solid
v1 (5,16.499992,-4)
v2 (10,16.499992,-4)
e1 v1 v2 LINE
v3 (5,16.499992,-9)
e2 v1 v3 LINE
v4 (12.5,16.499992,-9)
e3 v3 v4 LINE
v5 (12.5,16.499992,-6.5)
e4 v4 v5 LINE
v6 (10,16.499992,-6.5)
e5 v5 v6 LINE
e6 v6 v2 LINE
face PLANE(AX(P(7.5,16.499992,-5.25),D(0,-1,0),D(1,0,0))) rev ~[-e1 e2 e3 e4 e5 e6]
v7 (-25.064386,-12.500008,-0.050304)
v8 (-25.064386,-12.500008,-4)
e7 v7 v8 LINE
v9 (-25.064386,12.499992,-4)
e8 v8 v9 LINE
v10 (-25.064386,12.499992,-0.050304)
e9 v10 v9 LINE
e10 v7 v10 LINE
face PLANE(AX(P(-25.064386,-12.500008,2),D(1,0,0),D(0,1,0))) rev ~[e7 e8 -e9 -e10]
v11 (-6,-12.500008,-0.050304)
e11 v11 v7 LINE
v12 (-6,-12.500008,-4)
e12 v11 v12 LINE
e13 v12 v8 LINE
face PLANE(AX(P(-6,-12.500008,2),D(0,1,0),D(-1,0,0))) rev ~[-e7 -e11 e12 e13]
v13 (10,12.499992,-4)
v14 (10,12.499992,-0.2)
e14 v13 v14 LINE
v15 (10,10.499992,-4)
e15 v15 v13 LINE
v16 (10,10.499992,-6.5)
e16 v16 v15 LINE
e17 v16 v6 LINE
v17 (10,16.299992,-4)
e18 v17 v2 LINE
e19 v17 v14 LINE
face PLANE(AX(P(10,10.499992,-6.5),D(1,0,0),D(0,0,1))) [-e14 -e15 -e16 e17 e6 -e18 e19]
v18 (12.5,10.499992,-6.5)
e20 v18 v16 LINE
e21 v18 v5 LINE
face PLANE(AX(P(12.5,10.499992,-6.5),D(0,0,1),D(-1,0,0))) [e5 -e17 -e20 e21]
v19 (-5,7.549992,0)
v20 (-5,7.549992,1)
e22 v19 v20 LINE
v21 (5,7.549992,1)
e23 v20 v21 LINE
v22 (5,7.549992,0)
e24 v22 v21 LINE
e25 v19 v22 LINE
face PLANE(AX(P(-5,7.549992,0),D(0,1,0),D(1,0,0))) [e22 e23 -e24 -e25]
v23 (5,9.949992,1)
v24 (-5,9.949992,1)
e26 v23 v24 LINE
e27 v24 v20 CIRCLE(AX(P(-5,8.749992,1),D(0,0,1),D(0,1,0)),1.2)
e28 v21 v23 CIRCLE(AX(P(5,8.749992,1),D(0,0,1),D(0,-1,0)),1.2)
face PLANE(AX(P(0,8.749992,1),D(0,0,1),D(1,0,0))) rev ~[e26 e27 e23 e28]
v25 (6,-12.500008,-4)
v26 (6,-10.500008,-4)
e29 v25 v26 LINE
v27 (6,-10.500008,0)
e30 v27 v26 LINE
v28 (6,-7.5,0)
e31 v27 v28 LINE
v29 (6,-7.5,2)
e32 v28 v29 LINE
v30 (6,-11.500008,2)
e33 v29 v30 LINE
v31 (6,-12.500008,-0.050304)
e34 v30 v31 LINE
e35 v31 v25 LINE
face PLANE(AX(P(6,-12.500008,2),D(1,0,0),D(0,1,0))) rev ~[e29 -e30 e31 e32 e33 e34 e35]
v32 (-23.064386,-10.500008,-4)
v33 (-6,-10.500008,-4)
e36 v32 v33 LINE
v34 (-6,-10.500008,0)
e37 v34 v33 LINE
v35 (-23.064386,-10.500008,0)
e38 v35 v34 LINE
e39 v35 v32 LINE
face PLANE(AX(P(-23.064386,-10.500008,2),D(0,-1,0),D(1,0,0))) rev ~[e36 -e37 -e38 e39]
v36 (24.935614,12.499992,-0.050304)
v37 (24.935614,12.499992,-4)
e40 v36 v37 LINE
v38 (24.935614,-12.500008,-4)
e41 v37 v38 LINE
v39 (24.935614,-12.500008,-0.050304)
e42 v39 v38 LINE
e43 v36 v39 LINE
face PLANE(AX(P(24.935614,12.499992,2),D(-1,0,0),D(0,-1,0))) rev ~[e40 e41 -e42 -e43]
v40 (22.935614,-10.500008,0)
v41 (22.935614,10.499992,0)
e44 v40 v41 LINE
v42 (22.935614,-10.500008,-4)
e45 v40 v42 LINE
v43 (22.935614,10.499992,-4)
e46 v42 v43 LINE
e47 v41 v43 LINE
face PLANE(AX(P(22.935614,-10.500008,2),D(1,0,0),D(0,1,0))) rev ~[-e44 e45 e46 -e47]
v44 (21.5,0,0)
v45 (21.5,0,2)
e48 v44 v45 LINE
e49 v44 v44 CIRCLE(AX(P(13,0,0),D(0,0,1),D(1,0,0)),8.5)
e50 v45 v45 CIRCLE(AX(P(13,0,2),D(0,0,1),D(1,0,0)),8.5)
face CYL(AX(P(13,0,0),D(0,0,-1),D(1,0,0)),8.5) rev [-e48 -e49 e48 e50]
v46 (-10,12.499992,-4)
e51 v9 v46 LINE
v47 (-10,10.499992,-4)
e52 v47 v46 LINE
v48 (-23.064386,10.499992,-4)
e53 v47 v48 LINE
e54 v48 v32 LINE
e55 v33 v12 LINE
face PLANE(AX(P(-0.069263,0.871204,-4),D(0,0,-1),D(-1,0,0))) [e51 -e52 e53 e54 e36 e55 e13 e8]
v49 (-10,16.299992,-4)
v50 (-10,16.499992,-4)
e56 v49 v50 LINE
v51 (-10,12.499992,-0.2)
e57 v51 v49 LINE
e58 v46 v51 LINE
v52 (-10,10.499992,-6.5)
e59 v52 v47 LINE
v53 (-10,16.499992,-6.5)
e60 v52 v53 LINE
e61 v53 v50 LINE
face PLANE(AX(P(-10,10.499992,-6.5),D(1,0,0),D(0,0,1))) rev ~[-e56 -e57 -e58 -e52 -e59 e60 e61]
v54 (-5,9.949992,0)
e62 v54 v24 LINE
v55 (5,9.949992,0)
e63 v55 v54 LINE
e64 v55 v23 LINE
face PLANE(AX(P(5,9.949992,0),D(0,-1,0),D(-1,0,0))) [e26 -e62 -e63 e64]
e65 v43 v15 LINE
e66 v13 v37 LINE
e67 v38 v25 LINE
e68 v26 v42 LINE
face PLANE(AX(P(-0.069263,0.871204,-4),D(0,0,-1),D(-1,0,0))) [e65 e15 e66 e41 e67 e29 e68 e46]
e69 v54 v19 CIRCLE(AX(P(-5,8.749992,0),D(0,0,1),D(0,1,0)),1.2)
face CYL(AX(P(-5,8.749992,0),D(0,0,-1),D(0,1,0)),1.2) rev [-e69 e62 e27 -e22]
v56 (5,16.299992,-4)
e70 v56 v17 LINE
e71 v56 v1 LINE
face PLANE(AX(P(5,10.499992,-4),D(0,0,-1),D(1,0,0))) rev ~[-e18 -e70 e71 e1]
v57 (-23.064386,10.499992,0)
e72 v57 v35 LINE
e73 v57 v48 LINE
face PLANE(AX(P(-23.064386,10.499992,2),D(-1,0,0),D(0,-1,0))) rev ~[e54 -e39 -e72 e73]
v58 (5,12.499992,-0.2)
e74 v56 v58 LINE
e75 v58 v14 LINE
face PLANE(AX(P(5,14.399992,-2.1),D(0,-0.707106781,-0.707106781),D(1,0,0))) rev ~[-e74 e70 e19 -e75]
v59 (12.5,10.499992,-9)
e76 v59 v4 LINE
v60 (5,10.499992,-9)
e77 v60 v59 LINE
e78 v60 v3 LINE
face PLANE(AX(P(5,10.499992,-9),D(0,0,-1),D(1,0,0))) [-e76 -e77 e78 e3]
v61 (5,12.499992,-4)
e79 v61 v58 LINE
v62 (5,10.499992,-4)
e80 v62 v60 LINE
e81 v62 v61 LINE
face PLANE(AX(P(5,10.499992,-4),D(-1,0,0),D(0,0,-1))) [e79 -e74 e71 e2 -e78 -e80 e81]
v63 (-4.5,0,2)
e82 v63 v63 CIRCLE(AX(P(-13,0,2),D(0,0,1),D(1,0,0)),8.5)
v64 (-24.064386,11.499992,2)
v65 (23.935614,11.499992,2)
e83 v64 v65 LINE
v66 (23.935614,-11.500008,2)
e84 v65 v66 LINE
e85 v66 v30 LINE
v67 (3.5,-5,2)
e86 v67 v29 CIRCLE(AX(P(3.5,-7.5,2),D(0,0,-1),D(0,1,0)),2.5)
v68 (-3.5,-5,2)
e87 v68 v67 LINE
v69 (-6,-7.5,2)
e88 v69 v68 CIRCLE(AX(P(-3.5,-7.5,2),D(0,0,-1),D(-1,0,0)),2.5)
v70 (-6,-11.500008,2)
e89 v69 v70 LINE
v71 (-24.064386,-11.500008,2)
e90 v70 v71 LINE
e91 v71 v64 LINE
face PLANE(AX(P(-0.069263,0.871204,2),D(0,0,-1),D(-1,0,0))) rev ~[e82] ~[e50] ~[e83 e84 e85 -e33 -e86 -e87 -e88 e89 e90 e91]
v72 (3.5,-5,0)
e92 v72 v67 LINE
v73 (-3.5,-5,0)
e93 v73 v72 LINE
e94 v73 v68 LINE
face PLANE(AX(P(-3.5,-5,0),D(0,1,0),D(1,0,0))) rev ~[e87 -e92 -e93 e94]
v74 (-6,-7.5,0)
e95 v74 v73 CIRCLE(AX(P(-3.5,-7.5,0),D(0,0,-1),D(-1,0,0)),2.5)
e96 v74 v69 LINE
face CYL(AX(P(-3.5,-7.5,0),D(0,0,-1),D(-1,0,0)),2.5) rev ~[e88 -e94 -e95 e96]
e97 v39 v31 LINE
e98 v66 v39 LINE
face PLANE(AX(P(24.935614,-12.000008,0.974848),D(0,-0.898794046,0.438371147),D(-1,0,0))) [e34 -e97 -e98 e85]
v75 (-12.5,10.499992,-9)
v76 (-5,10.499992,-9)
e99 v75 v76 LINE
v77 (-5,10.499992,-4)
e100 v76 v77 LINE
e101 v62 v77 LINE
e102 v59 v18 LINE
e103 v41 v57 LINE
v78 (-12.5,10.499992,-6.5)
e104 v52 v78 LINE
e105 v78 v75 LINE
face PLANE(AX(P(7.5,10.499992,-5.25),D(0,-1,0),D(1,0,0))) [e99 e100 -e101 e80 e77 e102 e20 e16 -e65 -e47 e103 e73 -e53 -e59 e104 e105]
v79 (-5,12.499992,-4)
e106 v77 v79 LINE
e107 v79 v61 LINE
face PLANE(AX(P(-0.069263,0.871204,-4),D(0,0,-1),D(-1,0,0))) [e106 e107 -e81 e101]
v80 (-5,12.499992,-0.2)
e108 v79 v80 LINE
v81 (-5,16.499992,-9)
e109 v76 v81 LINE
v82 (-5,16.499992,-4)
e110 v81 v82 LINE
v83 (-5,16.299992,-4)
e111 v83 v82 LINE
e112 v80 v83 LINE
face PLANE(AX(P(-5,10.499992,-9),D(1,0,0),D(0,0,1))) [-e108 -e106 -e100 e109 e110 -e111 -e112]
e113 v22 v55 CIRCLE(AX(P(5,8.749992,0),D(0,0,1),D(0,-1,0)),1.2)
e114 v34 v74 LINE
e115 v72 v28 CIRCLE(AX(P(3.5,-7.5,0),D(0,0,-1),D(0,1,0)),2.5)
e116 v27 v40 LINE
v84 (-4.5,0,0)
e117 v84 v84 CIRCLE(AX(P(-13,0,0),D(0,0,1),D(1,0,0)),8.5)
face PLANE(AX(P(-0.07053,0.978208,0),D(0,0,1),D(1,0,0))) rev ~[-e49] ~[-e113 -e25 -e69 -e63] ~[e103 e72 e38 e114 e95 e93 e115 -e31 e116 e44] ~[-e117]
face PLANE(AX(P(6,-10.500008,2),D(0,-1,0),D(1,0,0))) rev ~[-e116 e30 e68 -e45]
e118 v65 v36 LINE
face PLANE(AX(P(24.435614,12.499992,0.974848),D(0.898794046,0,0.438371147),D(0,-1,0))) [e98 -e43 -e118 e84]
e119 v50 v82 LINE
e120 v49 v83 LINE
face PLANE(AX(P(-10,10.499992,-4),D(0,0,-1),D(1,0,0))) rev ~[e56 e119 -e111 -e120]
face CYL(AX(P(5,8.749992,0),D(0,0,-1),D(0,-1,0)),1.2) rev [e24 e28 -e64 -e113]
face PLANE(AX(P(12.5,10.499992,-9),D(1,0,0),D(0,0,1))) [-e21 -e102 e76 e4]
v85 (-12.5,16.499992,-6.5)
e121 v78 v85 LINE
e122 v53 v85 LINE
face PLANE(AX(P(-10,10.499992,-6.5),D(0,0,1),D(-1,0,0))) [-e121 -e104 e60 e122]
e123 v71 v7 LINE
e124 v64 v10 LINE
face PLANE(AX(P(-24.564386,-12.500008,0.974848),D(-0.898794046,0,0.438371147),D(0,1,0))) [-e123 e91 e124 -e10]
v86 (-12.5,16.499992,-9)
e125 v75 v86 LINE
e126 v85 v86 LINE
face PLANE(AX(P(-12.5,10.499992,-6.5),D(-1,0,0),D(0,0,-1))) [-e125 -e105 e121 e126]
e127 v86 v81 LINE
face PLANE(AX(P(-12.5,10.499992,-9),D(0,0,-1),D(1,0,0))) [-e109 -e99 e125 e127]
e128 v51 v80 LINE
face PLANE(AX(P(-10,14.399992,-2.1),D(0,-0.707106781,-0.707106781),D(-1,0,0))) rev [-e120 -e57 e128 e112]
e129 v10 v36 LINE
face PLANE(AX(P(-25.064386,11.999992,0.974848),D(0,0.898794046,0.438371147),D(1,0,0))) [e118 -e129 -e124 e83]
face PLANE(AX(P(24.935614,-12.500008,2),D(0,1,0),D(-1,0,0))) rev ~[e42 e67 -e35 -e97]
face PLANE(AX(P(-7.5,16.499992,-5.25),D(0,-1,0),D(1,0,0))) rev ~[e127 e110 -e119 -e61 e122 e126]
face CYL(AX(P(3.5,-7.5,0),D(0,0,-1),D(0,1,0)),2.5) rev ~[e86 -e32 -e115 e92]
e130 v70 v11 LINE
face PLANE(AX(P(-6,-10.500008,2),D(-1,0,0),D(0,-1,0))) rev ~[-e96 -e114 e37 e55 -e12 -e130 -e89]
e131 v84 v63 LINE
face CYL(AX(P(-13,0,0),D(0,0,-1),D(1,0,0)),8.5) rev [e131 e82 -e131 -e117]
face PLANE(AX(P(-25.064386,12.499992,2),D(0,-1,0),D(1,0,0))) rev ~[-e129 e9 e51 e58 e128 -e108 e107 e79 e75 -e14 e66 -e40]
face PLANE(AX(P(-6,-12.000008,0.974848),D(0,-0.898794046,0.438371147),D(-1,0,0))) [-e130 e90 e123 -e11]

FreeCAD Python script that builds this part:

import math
import FreeCAD as App
import Part
import Sketcher
from FreeCAD import Vector


def edges_at(feature, points):
    """Names of the edges that pass closest to the given points."""
    edges = feature.Shape.Edges
    near = lambda p: min(range(len(edges)), key=lambda i: edges[i].distToShape(Part.Vertex(*p))[0])
    return sorted({f"Edge{near(p) + 1}" for p in points})


def add_polygon(sketch, points):
    """Adds a closed chain of lines whose ends are joined by coincident constraints."""
    first, n = sketch.GeometryCount, len(points)
    for a, b in zip(points, points[1:] + points[:1]):
        sketch.addGeometry(Part.LineSegment(App.Vector(*a, 0), App.Vector(*b, 0)), False)
    for i in range(n):
        sketch.addConstraint(Sketcher.Constraint("Coincident", first + i, 2, first + (i + 1) % n, 1))

doc = App.newDocument("Part")
body = doc.addObject("PartDesign::Body", "Body")

sketch1 = body.newObject("Sketcher::SketchObject", "Sketch")
sketch1.AttachmentSupport = (doc.getObject("XY_Plane"), [""])
sketch1.MapMode = "FlatFace"
sketch1.addGeometry(Part.ArcOfCircle(Part.Circle(Vector(-3.5, -7.5, 0), Vector(0, 0, 1), 2.5), math.radians(90), math.radians(180)), False)
sketch1.addGeometry(Part.LineSegment(Vector(-3.5, -5, 0), Vector(3.5, -5, 0)), False)
sketch1.addGeometry(Part.ArcOfCircle(Part.Circle(Vector(3.5, -7.5, 0), Vector(0, 0, 1), 2.5), math.radians(0), math.radians(90)), False)
sketch1.addGeometry(Part.LineSegment(Vector(6, -7.5, 0), Vector(6, -10.5, 0)), False)
sketch1.addGeometry(Part.LineSegment(Vector(6, -10.5, 0), Vector(22.9, -10.5, 0)), False)
sketch1.addGeometry(Part.LineSegment(Vector(22.9, -10.5, 0), Vector(22.9, 10.5, 0)), False)
sketch1.addGeometry(Part.LineSegment(Vector(22.9, 10.5, 0), Vector(-23.1, 10.5, 0)), False)
sketch1.addGeometry(Part.LineSegment(Vector(-23.1, 10.5, 0), Vector(-23.1, -10.5, 0)), False)
sketch1.addGeometry(Part.LineSegment(Vector(-23.1, -10.5, 0), Vector(-6, -10.5, 0)), False)
sketch1.addGeometry(Part.LineSegment(Vector(-6, -10.5, 0), Vector(-6, -7.5, 0)), False)
sketch1.addGeometry(Part.Circle(Vector(-13, 0, 0), Vector(0, 0, 1), 8.5), False)
sketch1.addGeometry(Part.Circle(Vector(13, 0, 0), Vector(0, 0, 1), 8.5), False)
sketch1.addConstraint(Sketcher.Constraint("Tangent", 0, 1, 1, 1))
sketch1.addConstraint(Sketcher.Constraint("Tangent", 1, 2, 2, 2))
sketch1.addConstraint(Sketcher.Constraint("Tangent", 2, 1, 3, 1))
sketch1.addConstraint(Sketcher.Constraint("Coincident", 3, 2, 4, 1))
sketch1.addConstraint(Sketcher.Constraint("Coincident", 4, 2, 5, 1))
sketch1.addConstraint(Sketcher.Constraint("Coincident", 5, 2, 6, 1))
sketch1.addConstraint(Sketcher.Constraint("Coincident", 6, 2, 7, 1))
sketch1.addConstraint(Sketcher.Constraint("Coincident", 7, 2, 8, 1))
sketch1.addConstraint(Sketcher.Constraint("Coincident", 8, 2, 9, 1))
sketch1.addConstraint(Sketcher.Constraint("Tangent", 9, 2, 0, 2))
sketch1.addConstraint(Sketcher.Constraint("Horizontal", 1))
sketch1.addConstraint(Sketcher.Constraint("Vertical", 3))
sketch1.addConstraint(Sketcher.Constraint("Horizontal", 4))
sketch1.addConstraint(Sketcher.Constraint("Vertical", 5))
sketch1.addConstraint(Sketcher.Constraint("Horizontal", 6))
sketch1.addConstraint(Sketcher.Constraint("Vertical", 7))
sketch1.addConstraint(Sketcher.Constraint("Horizontal", 8))
sketch1.addConstraint(Sketcher.Constraint("Vertical", 9))
sketch1.addConstraint(Sketcher.Constraint("Equal", 0, 2))
sketch1.addConstraint(Sketcher.Constraint("Equal", 10, 11))
sketch1.addConstraint(Sketcher.Constraint("Symmetric", 10, 3, 11, 3, -1, 1))
sketch1.addConstraint(Sketcher.Constraint("Symmetric", 3, 2, 8, 2, -2))
sketch1.addConstraint(Sketcher.Constraint("PointOnObject", 10, 3, -1))
sketch1.addConstraint(Sketcher.Constraint("Diameter", 10, 17.0))
sketch1.addConstraint(Sketcher.Constraint("Radius", 0, 2.5))
sketch1.addConstraint(Sketcher.Constraint("DistanceX", 1, 1, 1, 2, 7.0))
sketch1.addConstraint(Sketcher.Constraint("DistanceX", 6, 2, 6, 1, 46.0))
sketch1.addConstraint(Sketcher.Constraint("DistanceY", 5, 1, 5, 2, 21.0))
sketch1.addConstraint(Sketcher.Constraint("DistanceX", 10, 3, -1, 1, 13.0))
sketch1.addConstraint(Sketcher.Constraint("DistanceY", 0, 1, -1, 1, 5.0))
sketch1.addConstraint(Sketcher.Constraint("DistanceX", 4, 1, 4, 2, 16.935614))
sketch1.addConstraint(Sketcher.Constraint("DistanceY", 3, 2, 3, 1, 3.000008))
pad1 = body.newObject("PartDesign::Pad", "Pad")
pad1.Profile = sketch1
pad1.Length = 2

sketch2 = body.newObject("Sketcher::SketchObject", "Sketch001")
sketch2.AttachmentSupport = (doc.getObject("XY_Plane"), [""])
sketch2.MapMode = "FlatFace"
add_polygon(sketch2, [(-6, -12.5), (-25.1, -12.5), (-25.1, 12.5), (24.9, 12.5), (24.9, -12.5), (6, -12.5), (6, -10.5), (22.9, -10.5), (22.9, 10.5), (-23.1, 10.5), (-23.1, -10.5), (-6, -10.5)])
sketch2.addConstraint(Sketcher.Constraint("Horizontal", 0))
sketch2.addConstraint(Sketcher.Constraint("Vertical", 1))
sketch2.addConstraint(Sketcher.Constraint("Horizontal", 2))
sketch2.addConstraint(Sketcher.Constraint("Vertical", 3))
sketch2.addConstraint(Sketcher.Constraint("Horizontal", 4))
sketch2.addConstraint(Sketcher.Constraint("Vertical", 5))
sketch2.addConstraint(Sketcher.Constraint("Horizontal", 6))
sketch2.addConstraint(Sketcher.Constraint("Vertical", 7))
sketch2.addConstraint(Sketcher.Constraint("Horizontal", 8))
sketch2.addConstraint(Sketcher.Constraint("Vertical", 9))
sketch2.addConstraint(Sketcher.Constraint("Horizontal", 10))
sketch2.addConstraint(Sketcher.Constraint("Vertical", 11))
sketch2.addConstraint(Sketcher.Constraint("Symmetric", 5, 2, 10, 2, -2))
sketch2.addConstraint(Sketcher.Constraint("Horizontal", 0, 2, 3, 2))
sketch2.addConstraint(Sketcher.Constraint("DistanceX", 2, 1, 2, 2, 50.0))
sketch2.addConstraint(Sketcher.Constraint("DistanceX", 8, 2, 8, 1, 46.0))
sketch2.addConstraint(Sketcher.Constraint("DistanceY", 1, 1, 1, 2, 25.0))
sketch2.addConstraint(Sketcher.Constraint("DistanceY", 5, 1, 5, 2, 2.0))
sketch2.addConstraint(Sketcher.Constraint("DistanceY", 7, 1, 7, 2, 21.0))
sketch2.addConstraint(Sketcher.Constraint("DistanceX", -1, 1, 4, 2, 6.0))
sketch2.addConstraint(Sketcher.Constraint("DistanceX", 6, 2, 3, 2, 2.0))
sketch2.addConstraint(Sketcher.Constraint("DistanceX", 0, 2, 0, 1, 19.064386))
sketch2.addConstraint(Sketcher.Constraint("DistanceY", 0, 2, -1, 1, 12.500008))
pad2 = body.newObject("PartDesign::Pad", "Pad001")
pad2.Profile = sketch2
pad2.Type = "TwoLengths"
pad2.Length = 4
pad2.Length2 = 2
pad2.Reversed = True
doc.recompute()

chamfer = body.newObject("PartDesign::Chamfer", "Chamfer")
chamfer.Base = (pad2, edges_at(pad2, [
    (-15.532, -12.5, 2),
    (-25.064, 0, 2),
    (-0.064, 12.5, 2),
    (24.936, 0, 2),
    (15.468, -12.5, 2),
]))
chamfer.ChamferType = "Two distances"
chamfer.Size = 1
chamfer.Size2 = 2.050304
chamfer.FlipDirection = True

sketch3 = body.newObject("Sketcher::SketchObject", "Sketch002")
sketch3.AttachmentSupport = (doc.getObject("XY_Plane"), [""])
sketch3.MapMode = "FlatFace"
sketch3.addGeometry(Part.LineSegment(Vector(-5, 9.9, 0), Vector(5, 9.9, 0)), False)
sketch3.addGeometry(Part.ArcOfCircle(Part.Circle(Vector(5, 8.7, 0), Vector(0, 0, 1), 1.2), math.radians(-90), math.radians(90)), False)
sketch3.addGeometry(Part.LineSegment(Vector(5, 7.5, 0), Vector(-5, 7.5, 0)), False)
sketch3.addGeometry(Part.ArcOfCircle(Part.Circle(Vector(-5, 8.7, 0), Vector(0, 0, 1), 1.2), math.radians(90), math.radians(270)), False)
sketch3.addConstraint(Sketcher.Constraint("Tangent", 0, 2, 1, 2))
sketch3.addConstraint(Sketcher.Constraint("Tangent", 1, 1, 2, 1))
sketch3.addConstraint(Sketcher.Constraint("Tangent", 2, 2, 3, 2))
sketch3.addConstraint(Sketcher.Constraint("Tangent", 3, 1, 0, 1))
sketch3.addConstraint(Sketcher.Constraint("Horizontal", 0))
sketch3.addConstraint(Sketcher.Constraint("Horizontal", 2))
sketch3.addConstraint(Sketcher.Constraint("Radius", 1, 1.2))
sketch3.addConstraint(Sketcher.Constraint("DistanceX", 0, 1, 0, 2, 10.0))
sketch3.addConstraint(Sketcher.Constraint("DistanceX", -1, 1, 1, 3, 5.0))
sketch3.addConstraint(Sketcher.Constraint("DistanceY", -1, 1, 1, 3, 8.749992))
pocket1 = body.newObject("PartDesign::Pocket", "Pocket")
pocket1.Profile = sketch3
pocket1.Length = 1
pocket1.Reversed = True

sketch4 = body.newObject("Sketcher::SketchObject", "Sketch003")
sketch4.AttachmentSupport = (doc.getObject("XZ_Plane"), [""])
sketch4.MapMode = "FlatFace"
sketch4.AttachmentOffset = App.Placement(Vector(0, 0, -10.499992), App.Rotation())
add_polygon(sketch4, [(5, -4), (5, -9), (12.5, -9), (12.5, -6.5), (10, -6.5), (10, -4)])
add_polygon(sketch4, [(-10, -4), (-10, -6.5), (-12.5, -6.5), (-12.5, -9), (-5, -9), (-5, -4)])
sketch4.addConstraint(Sketcher.Constraint("Vertical", 0))
sketch4.addConstraint(Sketcher.Constraint("Horizontal", 1))
sketch4.addConstraint(Sketcher.Constraint("Vertical", 2))
sketch4.addConstraint(Sketcher.Constraint("Horizontal", 3))
sketch4.addConstraint(Sketcher.Constraint("Vertical", 4))
sketch4.addConstraint(Sketcher.Constraint("Horizontal", 5))
sketch4.addConstraint(Sketcher.Constraint("Vertical", 6))
sketch4.addConstraint(Sketcher.Constraint("Horizontal", 7))
sketch4.addConstraint(Sketcher.Constraint("Vertical", 8))
sketch4.addConstraint(Sketcher.Constraint("Horizontal", 9))
sketch4.addConstraint(Sketcher.Constraint("Vertical", 10))
sketch4.addConstraint(Sketcher.Constraint("Horizontal", 11))
sketch4.addConstraint(Sketcher.Constraint("Symmetric", 3, 2, 6, 2, -2))
sketch4.addConstraint(Sketcher.Constraint("Symmetric", 1, 2, 8, 2, -2))
sketch4.addConstraint(Sketcher.Constraint("Symmetric", 5, 2, 10, 2, -2))
sketch4.addConstraint(Sketcher.Constraint("Equal", 11, 0))
sketch4.addConstraint(Sketcher.Constraint("Equal", 7, 2))
sketch4.addConstraint(Sketcher.Constraint("Equal", 2, 4))
sketch4.addConstraint(Sketcher.Constraint("DistanceX", 5, 2, 5, 1, 5.0))
sketch4.addConstraint(Sketcher.Constraint("DistanceX", -1, 1, 0, 2, 5.0))
sketch4.addConstraint(Sketcher.Constraint("DistanceY", 0, 2, -1, 1, 9.0))
pad3 = body.newObject("PartDesign::Pad", "Pad002")
pad3.Profile = sketch4
pad3.Length = 6
pad3.Reversed = True
doc.recompute()

chamfer2 = body.newObject("PartDesign::Chamfer", "Chamfer001")
chamfer2.Base = (pad3, edges_at(pad3, [(7.5, 12.5, -4), (-7.5, 12.5, -4)]))
chamfer2.Size = 3.8

doc.recompute()
